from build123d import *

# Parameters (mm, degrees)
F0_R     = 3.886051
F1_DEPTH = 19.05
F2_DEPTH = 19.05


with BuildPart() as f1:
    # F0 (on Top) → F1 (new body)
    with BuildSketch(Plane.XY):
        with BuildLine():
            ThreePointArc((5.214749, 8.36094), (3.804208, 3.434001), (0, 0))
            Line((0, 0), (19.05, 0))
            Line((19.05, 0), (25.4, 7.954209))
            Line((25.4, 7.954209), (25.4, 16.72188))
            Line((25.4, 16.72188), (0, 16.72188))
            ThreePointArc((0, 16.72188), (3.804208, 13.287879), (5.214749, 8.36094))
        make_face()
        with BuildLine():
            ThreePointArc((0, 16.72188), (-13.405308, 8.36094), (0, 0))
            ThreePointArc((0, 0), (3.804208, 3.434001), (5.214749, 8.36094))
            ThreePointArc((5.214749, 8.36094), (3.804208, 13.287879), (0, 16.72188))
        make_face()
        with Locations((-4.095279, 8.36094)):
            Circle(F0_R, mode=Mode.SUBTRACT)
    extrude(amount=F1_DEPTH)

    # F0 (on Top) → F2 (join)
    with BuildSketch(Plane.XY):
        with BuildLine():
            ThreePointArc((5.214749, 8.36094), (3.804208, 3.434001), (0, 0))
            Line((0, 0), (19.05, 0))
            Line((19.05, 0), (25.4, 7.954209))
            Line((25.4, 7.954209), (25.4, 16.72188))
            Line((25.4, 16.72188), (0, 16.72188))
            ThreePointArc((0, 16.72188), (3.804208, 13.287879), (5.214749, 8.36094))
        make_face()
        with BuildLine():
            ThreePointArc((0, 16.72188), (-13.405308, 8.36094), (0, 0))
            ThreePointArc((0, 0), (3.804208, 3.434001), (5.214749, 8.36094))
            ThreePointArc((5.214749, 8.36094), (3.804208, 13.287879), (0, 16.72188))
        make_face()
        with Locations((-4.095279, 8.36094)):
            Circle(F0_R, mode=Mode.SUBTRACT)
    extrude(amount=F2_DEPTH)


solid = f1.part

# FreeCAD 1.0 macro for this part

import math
import FreeCAD as App
import Part
import Sketcher
from FreeCAD import Vector
Q = App.Units.Quantity

doc = App.newDocument("Part")
body = doc.addObject("PartDesign::Body", "Body")

# Sketch on XY plane
sketch1 = body.newObject("Sketcher::SketchObject", "Sketch")
sketch1.AttachmentSupport = (doc.getObject("XY_Plane"), [""])
sketch1.MapMode = "FlatFace"
sketch1.addGeometry(Part.LineSegment(Vector(0, 0, 0), Vector(19.05, 0, 0)), False)
sketch1.addGeometry(Part.LineSegment(Vector(19.05, 0, 0), Vector(25.4, 7.954209, 0)), False)
sketch1.addGeometry(Part.LineSegment(Vector(25.4, 7.954209, 0), Vector(25.4, 16.72188, 0)), False)
sketch1.addGeometry(Part.LineSegment(Vector(25.4, 16.72188, 0), Vector(0, 16.72188, 0)), False)
sketch1.addGeometry(Part.ArcOfCircle(Part.Circle(Vector(-4.095279, 8.36094, 0), Vector(0, 0, 1), 9.310029), math.radians(63.903884), math.radians(296.096116)), False)
sketch1.addGeometry(Part.Circle(Vector(-4.095279, 8.36094, 0), Vector(0, 0, 1), 3.886051), False)
sketch1.addConstraint(Sketcher.Constraint("Coincident", 0, 2, 1, 1))
sketch1.addConstraint(Sketcher.Constraint("Coincident", 1, 2, 2, 1))
sketch1.addConstraint(Sketcher.Constraint("Coincident", 2, 2, 3, 1))
sketch1.addConstraint(Sketcher.Constraint("Coincident", 3, 2, 4, 1))
sketch1.addConstraint(Sketcher.Constraint("Coincident", 4, 2, 0, 1))
sketch1.addConstraint(Sketcher.Constraint("Horizontal", 0))
sketch1.addConstraint(Sketcher.Constraint("Vertical", 2))
sketch1.addConstraint(Sketcher.Constraint("Horizontal", 3))
sketch1.addConstraint(Sketcher.Constraint("Coincident", 4, 2, -1, 1))
sketch1.addConstraint(Sketcher.Constraint("Coincident", 5, 3, 4, 3))
sketch1.addConstraint(Sketcher.Constraint("PointOnObject", 3, 2, -2))
sketch1.addConstraint(Sketcher.Constraint("DistanceX", 3, 2, 3, 1, Q("1 in")))
sketch1.addConstraint(Sketcher.Constraint("DistanceX", 0, 1, 0, 2, Q("0.75 in")))
sketch1.addConstraint(Sketcher.Constraint("Radius", 4, Q("9.310029 mm")))
sketch1.addConstraint(Sketcher.Constraint("Diameter", 5, Q("7.772102 mm")))
sketch1.addConstraint(Sketcher.Constraint("DistanceY", 2, 1, 2, 2, Q("8.767671 mm")))
sketch1.addConstraint(Sketcher.Constraint("DistanceX", 4, 3, -1, 1, Q("4.095279 mm")))
pad1 = body.newObject("PartDesign::Pad", "Pad")
pad1.Profile = sketch1
pad1.Length = Q("0.75 in")

# Sketch on XY plane
sketch2 = body.newObject("Sketcher::SketchObject", "Sketch001")
sketch2.AttachmentSupport = (doc.getObject("XY_Plane"), [""])
sketch2.MapMode = "FlatFace"
sketch2.addGeometry(Part.LineSegment(Vector(0, 0, 0), Vector(19.05, 0, 0)), False)
sketch2.addGeometry(Part.LineSegment(Vector(19.05, 0, 0), Vector(25.4, 7.954209, 0)), False)
sketch2.addGeometry(Part.LineSegment(Vector(25.4, 7.954209, 0), Vector(25.4, 16.72188, 0)), False)
sketch2.addGeometry(Part.LineSegment(Vector(25.4, 16.72188, 0), Vector(0, 16.72188, 0)), False)
sketch2.addGeometry(Part.ArcOfCircle(Part.Circle(Vector(-4.095279, 8.36094, 0), Vector(0, 0, 1), 9.310029), math.radians(63.903884), math.radians(296.096116)), False)
sketch2.addGeometry(Part.Circle(Vector(-4.095279, 8.36094, 0), Vector(0, 0, 1), 3.886051), False)
sketch2.addConstraint(Sketcher.Constraint("Coincident", 0, 2, 1, 1))
sketch2.addConstraint(Sketcher.Constraint("Coincident", 1, 2, 2, 1))
sketch2.addConstraint(Sketcher.Constraint("Coincident", 2, 2, 3, 1))
sketch2.addConstraint(Sketcher.Constraint("Coincident", 3, 2, 4, 1))
sketch2.addConstraint(Sketcher.Constraint("Coincident", 4, 2, 0, 1))
sketch2.addConstraint(Sketcher.Constraint("Horizontal", 0))
sketch2.addConstraint(Sketcher.Constraint("Vertical", 2))
sketch2.addConstraint(Sketcher.Constraint("Horizontal", 3))
sketch2.addConstraint(Sketcher.Constraint("Coincident", 4, 2, -1, 1))
sketch2.addConstraint(Sketcher.Constraint("Coincident", 5, 3, 4, 3))
sketch2.addConstraint(Sketcher.Constraint("PointOnObject", 3, 2, -2))
sketch2.addConstraint(Sketcher.Constraint("DistanceX", 3, 2, 3, 1, Q("1 in")))
sketch2.addConstraint(Sketcher.Constraint("DistanceX", 0, 1, 0, 2, Q("0.75 in")))
sketch2.addConstraint(Sketcher.Constraint("Radius", 4, Q("9.310029 mm")))
sketch2.addConstraint(Sketcher.Constraint("Diameter", 5, Q("7.772102 mm")))
sketch2.addConstraint(Sketcher.Constraint("DistanceY", 2, 1, 2, 2, Q("8.767671 mm")))
sketch2.addConstraint(Sketcher.Constraint("DistanceX", 4, 3, -1, 1, Q("4.095279 mm")))
pad2 = body.newObject("PartDesign::Pad", "Pad001")
pad2.Profile = sketch2
pad2.Length = Q("0.75 in")

doc.recompute()
